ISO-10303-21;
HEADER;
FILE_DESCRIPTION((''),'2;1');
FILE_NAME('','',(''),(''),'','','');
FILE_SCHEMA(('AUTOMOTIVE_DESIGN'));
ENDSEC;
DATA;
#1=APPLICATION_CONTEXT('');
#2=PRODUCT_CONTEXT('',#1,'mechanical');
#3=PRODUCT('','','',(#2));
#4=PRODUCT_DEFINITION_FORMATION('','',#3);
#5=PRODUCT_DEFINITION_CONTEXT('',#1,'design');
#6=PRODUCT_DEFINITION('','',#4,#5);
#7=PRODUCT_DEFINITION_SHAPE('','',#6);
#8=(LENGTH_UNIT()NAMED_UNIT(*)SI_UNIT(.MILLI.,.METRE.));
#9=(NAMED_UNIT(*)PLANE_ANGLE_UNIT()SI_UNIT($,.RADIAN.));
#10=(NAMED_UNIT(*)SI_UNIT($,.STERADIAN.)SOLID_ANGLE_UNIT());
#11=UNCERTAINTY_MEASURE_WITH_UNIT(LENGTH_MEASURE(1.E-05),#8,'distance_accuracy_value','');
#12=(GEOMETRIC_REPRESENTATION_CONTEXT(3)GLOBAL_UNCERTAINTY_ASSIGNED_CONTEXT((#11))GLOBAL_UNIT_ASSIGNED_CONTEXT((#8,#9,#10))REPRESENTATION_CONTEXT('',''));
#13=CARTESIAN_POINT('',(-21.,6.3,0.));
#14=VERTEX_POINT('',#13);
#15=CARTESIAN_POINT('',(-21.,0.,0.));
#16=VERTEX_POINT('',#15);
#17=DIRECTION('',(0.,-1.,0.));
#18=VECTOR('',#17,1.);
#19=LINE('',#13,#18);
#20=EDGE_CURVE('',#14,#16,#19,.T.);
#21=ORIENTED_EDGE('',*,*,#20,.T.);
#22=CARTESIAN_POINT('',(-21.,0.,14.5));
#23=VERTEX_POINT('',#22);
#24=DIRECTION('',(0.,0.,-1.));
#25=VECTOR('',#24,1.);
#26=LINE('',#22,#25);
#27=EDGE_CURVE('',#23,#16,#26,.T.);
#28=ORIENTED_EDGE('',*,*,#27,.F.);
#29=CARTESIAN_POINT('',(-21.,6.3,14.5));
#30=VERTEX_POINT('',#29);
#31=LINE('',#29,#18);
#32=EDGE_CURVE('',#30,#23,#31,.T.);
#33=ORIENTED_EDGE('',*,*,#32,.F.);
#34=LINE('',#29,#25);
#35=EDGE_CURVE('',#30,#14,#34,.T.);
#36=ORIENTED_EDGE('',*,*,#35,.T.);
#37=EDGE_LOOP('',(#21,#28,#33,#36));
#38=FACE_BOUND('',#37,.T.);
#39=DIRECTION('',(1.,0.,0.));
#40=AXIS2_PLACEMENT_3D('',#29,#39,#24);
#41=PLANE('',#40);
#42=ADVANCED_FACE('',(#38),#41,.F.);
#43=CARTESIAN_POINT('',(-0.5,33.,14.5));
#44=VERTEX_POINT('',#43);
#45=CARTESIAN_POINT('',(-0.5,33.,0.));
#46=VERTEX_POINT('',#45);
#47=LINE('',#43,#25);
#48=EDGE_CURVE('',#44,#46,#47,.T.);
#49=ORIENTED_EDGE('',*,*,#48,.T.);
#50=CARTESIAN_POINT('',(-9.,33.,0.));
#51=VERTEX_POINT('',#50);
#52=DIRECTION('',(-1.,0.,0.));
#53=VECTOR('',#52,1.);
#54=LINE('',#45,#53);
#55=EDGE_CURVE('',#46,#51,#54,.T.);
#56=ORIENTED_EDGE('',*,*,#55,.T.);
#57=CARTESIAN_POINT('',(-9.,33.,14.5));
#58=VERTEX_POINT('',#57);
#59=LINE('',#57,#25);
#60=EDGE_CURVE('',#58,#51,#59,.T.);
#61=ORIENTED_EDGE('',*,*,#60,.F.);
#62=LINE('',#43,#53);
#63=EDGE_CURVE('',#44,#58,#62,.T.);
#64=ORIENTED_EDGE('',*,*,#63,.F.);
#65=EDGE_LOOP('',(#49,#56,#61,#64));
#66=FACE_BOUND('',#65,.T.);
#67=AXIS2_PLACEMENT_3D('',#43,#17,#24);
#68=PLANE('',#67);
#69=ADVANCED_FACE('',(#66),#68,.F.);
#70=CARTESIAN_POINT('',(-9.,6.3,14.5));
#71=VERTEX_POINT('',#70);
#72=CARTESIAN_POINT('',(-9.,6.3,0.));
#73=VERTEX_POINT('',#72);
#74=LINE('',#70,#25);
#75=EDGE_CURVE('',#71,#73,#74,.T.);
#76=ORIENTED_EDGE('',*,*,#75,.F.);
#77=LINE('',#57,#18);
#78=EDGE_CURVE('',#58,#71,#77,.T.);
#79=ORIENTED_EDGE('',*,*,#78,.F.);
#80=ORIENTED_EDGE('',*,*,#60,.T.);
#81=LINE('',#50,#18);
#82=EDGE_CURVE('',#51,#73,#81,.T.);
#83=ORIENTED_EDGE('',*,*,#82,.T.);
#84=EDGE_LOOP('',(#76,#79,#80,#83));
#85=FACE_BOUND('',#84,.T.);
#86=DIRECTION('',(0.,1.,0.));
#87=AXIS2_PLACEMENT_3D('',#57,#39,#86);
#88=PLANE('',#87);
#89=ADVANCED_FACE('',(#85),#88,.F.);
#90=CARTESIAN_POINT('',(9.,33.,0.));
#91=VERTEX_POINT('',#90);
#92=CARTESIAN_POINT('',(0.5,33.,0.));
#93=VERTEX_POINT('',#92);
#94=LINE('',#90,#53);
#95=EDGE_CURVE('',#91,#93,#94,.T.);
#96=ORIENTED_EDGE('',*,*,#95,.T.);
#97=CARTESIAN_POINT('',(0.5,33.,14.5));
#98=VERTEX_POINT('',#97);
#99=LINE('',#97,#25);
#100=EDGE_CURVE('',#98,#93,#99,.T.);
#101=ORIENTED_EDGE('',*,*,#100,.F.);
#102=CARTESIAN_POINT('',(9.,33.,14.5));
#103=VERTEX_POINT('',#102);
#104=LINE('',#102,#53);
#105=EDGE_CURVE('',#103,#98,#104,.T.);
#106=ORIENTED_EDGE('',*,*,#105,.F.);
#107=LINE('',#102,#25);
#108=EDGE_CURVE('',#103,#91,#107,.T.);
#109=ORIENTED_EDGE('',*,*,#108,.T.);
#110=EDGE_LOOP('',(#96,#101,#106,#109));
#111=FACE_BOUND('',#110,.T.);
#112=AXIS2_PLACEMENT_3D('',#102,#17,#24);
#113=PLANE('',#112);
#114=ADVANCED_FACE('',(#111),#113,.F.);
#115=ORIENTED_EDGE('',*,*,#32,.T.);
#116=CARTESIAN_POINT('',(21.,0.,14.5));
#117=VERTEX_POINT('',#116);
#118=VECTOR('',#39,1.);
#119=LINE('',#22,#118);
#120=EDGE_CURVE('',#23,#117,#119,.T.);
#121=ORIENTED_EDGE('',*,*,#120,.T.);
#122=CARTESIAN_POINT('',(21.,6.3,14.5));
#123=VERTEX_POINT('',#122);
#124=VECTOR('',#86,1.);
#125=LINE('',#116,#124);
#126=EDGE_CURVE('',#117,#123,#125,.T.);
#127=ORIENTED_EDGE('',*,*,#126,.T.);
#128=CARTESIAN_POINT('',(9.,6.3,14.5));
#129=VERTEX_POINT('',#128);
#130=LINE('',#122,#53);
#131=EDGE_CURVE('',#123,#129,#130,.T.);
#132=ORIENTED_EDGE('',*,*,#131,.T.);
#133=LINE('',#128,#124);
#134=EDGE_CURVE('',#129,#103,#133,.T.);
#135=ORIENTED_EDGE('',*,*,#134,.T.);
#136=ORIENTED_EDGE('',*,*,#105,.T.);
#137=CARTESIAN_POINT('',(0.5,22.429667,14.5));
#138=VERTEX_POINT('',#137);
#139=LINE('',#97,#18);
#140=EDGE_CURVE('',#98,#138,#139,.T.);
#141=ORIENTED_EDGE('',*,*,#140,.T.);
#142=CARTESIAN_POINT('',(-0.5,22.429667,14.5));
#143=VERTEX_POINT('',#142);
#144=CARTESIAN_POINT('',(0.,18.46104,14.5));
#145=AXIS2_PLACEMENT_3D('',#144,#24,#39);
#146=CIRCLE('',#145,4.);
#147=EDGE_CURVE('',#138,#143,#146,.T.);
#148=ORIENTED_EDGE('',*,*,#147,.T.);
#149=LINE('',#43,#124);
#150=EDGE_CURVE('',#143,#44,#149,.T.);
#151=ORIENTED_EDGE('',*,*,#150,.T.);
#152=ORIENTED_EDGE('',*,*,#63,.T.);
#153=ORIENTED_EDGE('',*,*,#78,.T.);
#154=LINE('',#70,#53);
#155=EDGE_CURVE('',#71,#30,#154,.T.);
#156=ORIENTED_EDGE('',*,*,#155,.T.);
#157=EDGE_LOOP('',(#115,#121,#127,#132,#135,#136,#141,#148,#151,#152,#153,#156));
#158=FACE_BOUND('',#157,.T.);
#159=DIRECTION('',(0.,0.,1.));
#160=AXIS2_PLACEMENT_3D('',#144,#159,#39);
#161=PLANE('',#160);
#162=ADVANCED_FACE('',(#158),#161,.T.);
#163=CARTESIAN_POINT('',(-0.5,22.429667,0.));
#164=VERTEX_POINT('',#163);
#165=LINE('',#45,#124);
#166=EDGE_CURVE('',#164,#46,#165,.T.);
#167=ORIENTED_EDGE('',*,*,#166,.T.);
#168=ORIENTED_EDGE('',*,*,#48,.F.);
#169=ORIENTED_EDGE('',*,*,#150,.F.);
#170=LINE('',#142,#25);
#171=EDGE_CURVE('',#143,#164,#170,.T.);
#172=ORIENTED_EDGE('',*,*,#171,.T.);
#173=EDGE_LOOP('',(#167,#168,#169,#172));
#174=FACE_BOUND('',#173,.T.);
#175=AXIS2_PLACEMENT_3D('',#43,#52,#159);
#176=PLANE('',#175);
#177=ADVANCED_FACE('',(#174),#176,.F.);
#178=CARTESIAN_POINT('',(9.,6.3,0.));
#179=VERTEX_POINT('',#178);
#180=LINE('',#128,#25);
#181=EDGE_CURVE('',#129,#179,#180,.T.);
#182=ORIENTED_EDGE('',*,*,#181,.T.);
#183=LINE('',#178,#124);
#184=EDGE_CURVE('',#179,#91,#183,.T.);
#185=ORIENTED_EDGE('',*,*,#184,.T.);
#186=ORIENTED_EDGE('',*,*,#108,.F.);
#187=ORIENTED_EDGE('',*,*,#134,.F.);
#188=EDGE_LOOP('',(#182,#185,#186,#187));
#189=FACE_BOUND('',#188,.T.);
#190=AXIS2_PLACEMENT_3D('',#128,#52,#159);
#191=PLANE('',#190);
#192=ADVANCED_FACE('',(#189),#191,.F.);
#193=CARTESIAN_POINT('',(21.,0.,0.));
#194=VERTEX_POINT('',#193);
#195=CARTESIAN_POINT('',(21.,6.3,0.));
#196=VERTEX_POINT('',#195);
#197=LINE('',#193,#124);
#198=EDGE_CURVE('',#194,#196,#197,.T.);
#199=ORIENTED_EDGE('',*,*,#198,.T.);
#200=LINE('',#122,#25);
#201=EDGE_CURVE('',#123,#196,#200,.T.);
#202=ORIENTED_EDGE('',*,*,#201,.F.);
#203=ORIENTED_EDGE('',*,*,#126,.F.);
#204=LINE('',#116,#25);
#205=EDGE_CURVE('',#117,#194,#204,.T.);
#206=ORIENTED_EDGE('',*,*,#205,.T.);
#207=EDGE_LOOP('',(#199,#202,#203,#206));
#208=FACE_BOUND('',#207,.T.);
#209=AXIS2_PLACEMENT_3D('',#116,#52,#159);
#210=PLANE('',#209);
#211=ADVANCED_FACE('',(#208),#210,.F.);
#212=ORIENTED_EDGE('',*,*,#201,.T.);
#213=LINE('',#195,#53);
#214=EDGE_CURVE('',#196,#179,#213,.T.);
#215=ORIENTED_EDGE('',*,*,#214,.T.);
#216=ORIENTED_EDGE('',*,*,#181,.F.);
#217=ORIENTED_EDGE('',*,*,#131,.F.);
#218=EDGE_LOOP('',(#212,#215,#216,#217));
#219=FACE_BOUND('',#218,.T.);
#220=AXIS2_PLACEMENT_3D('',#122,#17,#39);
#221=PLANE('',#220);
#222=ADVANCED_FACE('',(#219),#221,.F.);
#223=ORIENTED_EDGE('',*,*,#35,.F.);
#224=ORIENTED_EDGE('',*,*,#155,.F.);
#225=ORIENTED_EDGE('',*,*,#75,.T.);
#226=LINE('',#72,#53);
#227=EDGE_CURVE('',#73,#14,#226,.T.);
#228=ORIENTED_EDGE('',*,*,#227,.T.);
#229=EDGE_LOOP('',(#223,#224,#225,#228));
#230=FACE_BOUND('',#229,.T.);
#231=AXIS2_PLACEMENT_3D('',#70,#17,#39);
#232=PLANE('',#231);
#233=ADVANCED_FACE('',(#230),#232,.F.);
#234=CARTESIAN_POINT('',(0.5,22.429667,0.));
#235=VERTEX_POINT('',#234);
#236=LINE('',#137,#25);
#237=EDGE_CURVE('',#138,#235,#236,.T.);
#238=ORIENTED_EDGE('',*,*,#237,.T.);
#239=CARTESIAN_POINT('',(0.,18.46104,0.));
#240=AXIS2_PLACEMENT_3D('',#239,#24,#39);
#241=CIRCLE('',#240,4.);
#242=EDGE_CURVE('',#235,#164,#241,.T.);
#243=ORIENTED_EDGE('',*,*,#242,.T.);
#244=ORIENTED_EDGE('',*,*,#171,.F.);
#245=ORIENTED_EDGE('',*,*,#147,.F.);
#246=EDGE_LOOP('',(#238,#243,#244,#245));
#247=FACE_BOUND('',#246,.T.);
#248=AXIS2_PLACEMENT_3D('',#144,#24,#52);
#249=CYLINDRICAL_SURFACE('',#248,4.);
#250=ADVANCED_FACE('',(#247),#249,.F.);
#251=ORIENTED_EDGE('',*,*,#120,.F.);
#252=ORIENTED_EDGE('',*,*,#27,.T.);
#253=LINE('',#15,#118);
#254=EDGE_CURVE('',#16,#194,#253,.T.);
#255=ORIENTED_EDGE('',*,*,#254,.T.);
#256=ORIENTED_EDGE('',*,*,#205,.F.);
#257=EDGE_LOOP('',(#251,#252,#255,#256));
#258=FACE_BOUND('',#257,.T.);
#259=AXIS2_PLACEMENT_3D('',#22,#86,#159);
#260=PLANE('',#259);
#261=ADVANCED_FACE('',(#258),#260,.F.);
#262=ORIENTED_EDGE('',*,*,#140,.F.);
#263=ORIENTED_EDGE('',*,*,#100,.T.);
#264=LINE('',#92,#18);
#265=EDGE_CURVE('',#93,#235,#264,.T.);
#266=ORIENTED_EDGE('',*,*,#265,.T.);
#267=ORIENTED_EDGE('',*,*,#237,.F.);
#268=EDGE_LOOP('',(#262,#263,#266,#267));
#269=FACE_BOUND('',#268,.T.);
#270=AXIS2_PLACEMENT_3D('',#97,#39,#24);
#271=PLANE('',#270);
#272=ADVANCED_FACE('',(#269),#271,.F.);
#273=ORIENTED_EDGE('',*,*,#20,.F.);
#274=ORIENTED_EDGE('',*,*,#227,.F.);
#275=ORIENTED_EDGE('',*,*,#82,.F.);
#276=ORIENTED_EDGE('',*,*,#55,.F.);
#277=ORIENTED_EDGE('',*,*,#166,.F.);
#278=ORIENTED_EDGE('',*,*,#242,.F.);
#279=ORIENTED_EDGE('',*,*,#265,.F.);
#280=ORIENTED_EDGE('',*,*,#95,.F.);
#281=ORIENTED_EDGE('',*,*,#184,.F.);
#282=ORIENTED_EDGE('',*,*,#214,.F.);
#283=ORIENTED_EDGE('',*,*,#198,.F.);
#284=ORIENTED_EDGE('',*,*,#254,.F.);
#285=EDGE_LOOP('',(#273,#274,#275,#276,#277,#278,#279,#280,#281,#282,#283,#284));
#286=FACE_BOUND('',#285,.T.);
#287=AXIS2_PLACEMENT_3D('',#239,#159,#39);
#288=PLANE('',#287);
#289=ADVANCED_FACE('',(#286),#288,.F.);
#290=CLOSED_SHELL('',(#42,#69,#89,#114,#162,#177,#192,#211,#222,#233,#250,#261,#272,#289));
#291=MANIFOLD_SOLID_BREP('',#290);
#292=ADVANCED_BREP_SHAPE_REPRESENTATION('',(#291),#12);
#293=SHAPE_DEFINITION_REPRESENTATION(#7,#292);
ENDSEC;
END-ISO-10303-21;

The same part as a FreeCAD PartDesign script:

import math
import FreeCAD as App
import Part
import Sketcher
from FreeCAD import Vector

doc = App.newDocument("Part")
params = doc.addObject("Spreadsheet::Sheet", "Params")
for row, (alias, value) in enumerate([
    ("sketch1_radius", "4 mm"),
    ("sketch1_width", "42 mm"),
    ("sketch1_width2", "12 mm"),
    ("sketch1_width3", "8.5 mm"),
    ("sketch1_height", "6.3 mm"),
    ("pad1_length", "14.5 mm"),
], start=1):
    params.set(f"A{row}", alias)
    params.set(f"B{row}", "=" + value)
    params.setAlias(f"B{row}", alias)

body = doc.addObject("PartDesign::Body", "Body")

# Sketch on XY plane
sketch1 = body.newObject("Sketcher::SketchObject", "Sketch")
sketch1.AttachmentSupport = (doc.getObject("XY_Plane"), [""])
sketch1.MapMode = "FlatFace"
sketch1.addGeometry([
    Part.LineSegment(Vector(-21, 0, 0), Vector(21, 0, 0)),  # 0
    Part.LineSegment(Vector(21, 0, 0), Vector(21, 6.3, 0)),  # 1
    Part.LineSegment(Vector(21, 6.3, 0), Vector(9, 6.3, 0)),  # 2
    Part.LineSegment(Vector(9, 6.3, 0), Vector(9, 33, 0)),  # 3
    Part.LineSegment(Vector(9, 33, 0), Vector(0.5, 33, 0)),  # 4
    Part.LineSegment(Vector(0.5, 33, 0), Vector(0.5, 22.4, 0)),  # 5
    Part.ArcOfCircle(Part.Circle(Vector(0, 18.5, 0), Vector(0, 0, 1), 4), math.radians(97), math.radians(443)),  # 6
    Part.LineSegment(Vector(-0.5, 22.4, 0), Vector(-0.5, 33, 0)),  # 7
    Part.LineSegment(Vector(-0.5, 33, 0), Vector(-9, 33, 0)),  # 8
    Part.LineSegment(Vector(-9, 33, 0), Vector(-9, 6.3, 0)),  # 9
    Part.LineSegment(Vector(-9, 6.3, 0), Vector(-21, 6.3, 0)),  # 10
    Part.LineSegment(Vector(-21, 6.3, 0), Vector(-21, 0, 0)),  # 11
], False)
sketch1.addConstraint([
    Sketcher.Constraint("Coincident", 0, 2, 1, 1),
    Sketcher.Constraint("Coincident", 1, 2, 2, 1),
    Sketcher.Constraint("Coincident", 2, 2, 3, 1),
    Sketcher.Constraint("Coincident", 3, 2, 4, 1),
    Sketcher.Constraint("Coincident", 4, 2, 5, 1),
    Sketcher.Constraint("Coincident", 5, 2, 6, 2),
    Sketcher.Constraint("Coincident", 6, 1, 7, 1),
    Sketcher.Constraint("Coincident", 7, 2, 8, 1),
    Sketcher.Constraint("Coincident", 8, 2, 9, 1),
    Sketcher.Constraint("Coincident", 9, 2, 10, 1),
    Sketcher.Constraint("Coincident", 10, 2, 11, 1),
    Sketcher.Constraint("Coincident", 11, 2, 0, 1),
    Sketcher.Constraint("Horizontal", 0),
    Sketcher.Constraint("Vertical", 1),
    Sketcher.Constraint("Horizontal", 2),
    Sketcher.Constraint("Vertical", 3),
    Sketcher.Constraint("Horizontal", 4),
    Sketcher.Constraint("Vertical", 5),
    Sketcher.Constraint("Vertical", 7),
    Sketcher.Constraint("Horizontal", 8),
    Sketcher.Constraint("Vertical", 9),
    Sketcher.Constraint("Horizontal", 10),
    Sketcher.Constraint("Vertical", 11),
    Sketcher.Constraint("Symmetric", 0, 2, 11, 2, -1, 1),
    Sketcher.Constraint("Symmetric", 5, 2, 6, 1, -2),
    Sketcher.Constraint("Symmetric", 3, 2, 8, 2, -2),
    Sketcher.Constraint("Horizontal", 2, 2, 9, 2),
    Sketcher.Constraint("Radius", 6, 4.0),
    Sketcher.Constraint("DistanceX", 0, 1, 0, 2, 42.0),
    Sketcher.Constraint("DistanceX", 2, 2, 2, 1, 12.0),
    Sketcher.Constraint("DistanceX", 4, 2, 4, 1, 8.5),
    Sketcher.Constraint("DistanceY", 1, 1, 1, 2, 6.3),
    Sketcher.Constraint("DistanceY", 3, 1, 3, 2, 26.7),
    Sketcher.Constraint("DistanceY", 5, 2, 5, 1, 10.570333),
])
sketch1.setExpression("Constraints[27]", "Params.sketch1_radius")
sketch1.setExpression("Constraints[28]", "Params.sketch1_width")
sketch1.setExpression("Constraints[29]", "Params.sketch1_width2")
sketch1.setExpression("Constraints[30]", "Params.sketch1_width3")
sketch1.setExpression("Constraints[31]", "Params.sketch1_height")
pad1 = body.newObject("PartDesign::Pad", "Pad")
pad1.Profile = sketch1
pad1.setExpression("Length", "Params.pad1_length")

doc.recompute()
